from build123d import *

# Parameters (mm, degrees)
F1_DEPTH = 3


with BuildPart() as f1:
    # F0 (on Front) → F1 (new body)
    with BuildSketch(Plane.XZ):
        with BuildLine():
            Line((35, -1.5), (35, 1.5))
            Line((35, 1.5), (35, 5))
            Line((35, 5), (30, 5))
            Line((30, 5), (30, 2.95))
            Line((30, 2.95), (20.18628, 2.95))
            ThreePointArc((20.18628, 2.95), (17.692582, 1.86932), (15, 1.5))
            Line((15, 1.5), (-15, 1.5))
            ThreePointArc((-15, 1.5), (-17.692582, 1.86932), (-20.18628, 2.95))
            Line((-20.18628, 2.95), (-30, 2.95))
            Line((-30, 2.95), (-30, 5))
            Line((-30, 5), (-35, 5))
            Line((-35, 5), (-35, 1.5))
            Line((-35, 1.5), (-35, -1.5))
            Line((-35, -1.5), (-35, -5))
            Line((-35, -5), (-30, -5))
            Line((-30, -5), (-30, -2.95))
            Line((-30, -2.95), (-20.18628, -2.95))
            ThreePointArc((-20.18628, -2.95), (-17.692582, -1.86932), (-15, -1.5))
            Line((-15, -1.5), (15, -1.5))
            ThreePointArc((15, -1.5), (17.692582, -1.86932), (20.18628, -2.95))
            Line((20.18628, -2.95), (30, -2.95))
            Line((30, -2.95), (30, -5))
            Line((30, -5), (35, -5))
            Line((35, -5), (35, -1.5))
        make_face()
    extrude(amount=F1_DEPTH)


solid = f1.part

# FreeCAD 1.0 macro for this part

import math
import FreeCAD as App
import Part
import Sketcher
from FreeCAD import Vector
Q = App.Units.Quantity

doc = App.newDocument("Part")
body = doc.addObject("PartDesign::Body", "Body")

sketch1 = body.newObject("Sketcher::SketchObject", "Sketch")
sketch1.AttachmentSupport = (doc.getObject("XZ_Plane"), [""])
sketch1.MapMode = "FlatFace"
sketch1.addGeometry(Part.LineSegment(Vector(35, 5, 0), Vector(30, 5, 0)), False)
sketch1.addGeometry(Part.LineSegment(Vector(30, 5, 0), Vector(30, 3, 0)), False)
sketch1.addGeometry(Part.LineSegment(Vector(30, 3, 0), Vector(20.2, 3, 0)), False)
sketch1.addGeometry(Part.ArcOfCircle(Part.Circle(Vector(15, 11.5, 0), Vector(0, 0, 1), 10), math.radians(-90), math.radians(-59)), False)
sketch1.addGeometry(Part.LineSegment(Vector(15, 1.5, 0), Vector(-15, 1.5, 0)), False)
sketch1.addGeometry(Part.ArcOfCircle(Part.Circle(Vector(-15, 11.5, 0), Vector(0, 0, 1), 10), math.radians(-121), math.radians(-90)), False)
sketch1.addGeometry(Part.LineSegment(Vector(-20.2, 3, 0), Vector(-30, 3, 0)), False)
sketch1.addGeometry(Part.LineSegment(Vector(-30, 3, 0), Vector(-30, 5, 0)), False)
sketch1.addGeometry(Part.LineSegment(Vector(-30, 5, 0), Vector(-35, 5, 0)), False)
sketch1.addGeometry(Part.LineSegment(Vector(-35, 5, 0), Vector(-35, -5, 0)), False)
sketch1.addGeometry(Part.LineSegment(Vector(-35, -5, 0), Vector(-30, -5, 0)), False)
sketch1.addGeometry(Part.LineSegment(Vector(-30, -5, 0), Vector(-30, -3, 0)), False)
sketch1.addGeometry(Part.LineSegment(Vector(-30, -3, 0), Vector(-20.2, -3, 0)), False)
sketch1.addGeometry(Part.ArcOfCircle(Part.Circle(Vector(-15, -11.5, 0), Vector(0, 0, 1), 10), math.radians(90), math.radians(121)), False)
sketch1.addGeometry(Part.LineSegment(Vector(-15, -1.5, 0), Vector(15, -1.5, 0)), False)
sketch1.addGeometry(Part.ArcOfCircle(Part.Circle(Vector(15, -11.5, 0), Vector(0, 0, 1), 10), math.radians(59), math.radians(90)), False)
sketch1.addGeometry(Part.LineSegment(Vector(20.2, -3, 0), Vector(30, -3, 0)), False)
sketch1.addGeometry(Part.LineSegment(Vector(30, -3, 0), Vector(30, -5, 0)), False)
sketch1.addGeometry(Part.LineSegment(Vector(30, -5, 0), Vector(35, -5, 0)), False)
sketch1.addGeometry(Part.LineSegment(Vector(35, -5, 0), Vector(35, 5, 0)), False)
sketch1.addConstraint(Sketcher.Constraint("Coincident", 0, 2, 1, 1))
sketch1.addConstraint(Sketcher.Constraint("Coincident", 1, 2, 2, 1))
sketch1.addConstraint(Sketcher.Constraint("Coincident", 2, 2, 3, 2))
sketch1.addConstraint(Sketcher.Constraint("Tangent", 3, 1, 4, 1))
sketch1.addConstraint(Sketcher.Constraint("Tangent", 4, 2, 5, 2))
sketch1.addConstraint(Sketcher.Constraint("Coincident", 5, 1, 6, 1))
sketch1.addConstraint(Sketcher.Constraint("Coincident", 6, 2, 7, 1))
sketch1.addConstraint(Sketcher.Constraint("Coincident", 7, 2, 8, 1))
sketch1.addConstraint(Sketcher.Constraint("Coincident", 8, 2, 9, 1))
sketch1.addConstraint(Sketcher.Constraint("Coincident", 9, 2, 10, 1))
sketch1.addConstraint(Sketcher.Constraint("Coincident", 10, 2, 11, 1))
sketch1.addConstraint(Sketcher.Constraint("Coincident", 11, 2, 12, 1))
sketch1.addConstraint(Sketcher.Constraint("Coincident", 12, 2, 13, 2))
sketch1.addConstraint(Sketcher.Constraint("Tangent", 13, 1, 14, 1))
sketch1.addConstraint(Sketcher.Constraint("Tangent", 14, 2, 15, 2))
sketch1.addConstraint(Sketcher.Constraint("Coincident", 15, 1, 16, 1))
sketch1.addConstraint(Sketcher.Constraint("Coincident", 16, 2, 17, 1))
sketch1.addConstraint(Sketcher.Constraint("Coincident", 17, 2, 18, 1))
sketch1.addConstraint(Sketcher.Constraint("Coincident", 18, 2, 19, 1))
sketch1.addConstraint(Sketcher.Constraint("Coincident", 19, 2, 0, 1))
sketch1.addConstraint(Sketcher.Constraint("Horizontal", 0))
sketch1.addConstraint(Sketcher.Constraint("Vertical", 1))
sketch1.addConstraint(Sketcher.Constraint("Horizontal", 2))
sketch1.addConstraint(Sketcher.Constraint("Horizontal", 4))
sketch1.addConstraint(Sketcher.Constraint("Horizontal", 6))
sketch1.addConstraint(Sketcher.Constraint("Vertical", 7))
sketch1.addConstraint(Sketcher.Constraint("Horizontal", 8))
sketch1.addConstraint(Sketcher.Constraint("Vertical", 9))
sketch1.addConstraint(Sketcher.Constraint("Horizontal", 10))
sketch1.addConstraint(Sketcher.Constraint("Vertical", 11))
sketch1.addConstraint(Sketcher.Constraint("Horizontal", 12))
sketch1.addConstraint(Sketcher.Constraint("Horizontal", 14))
sketch1.addConstraint(Sketcher.Constraint("Horizontal", 16))
sketch1.addConstraint(Sketcher.Constraint("Vertical", 17))
sketch1.addConstraint(Sketcher.Constraint("Horizontal", 18))
sketch1.addConstraint(Sketcher.Constraint("Vertical", 19))
sketch1.addConstraint(Sketcher.Constraint("Equal", 3, 5))
sketch1.addConstraint(Sketcher.Constraint("Equal", 5, 13))
sketch1.addConstraint(Sketcher.Constraint("Equal", 13, 15))
sketch1.addConstraint(Sketcher.Constraint("Symmetric", 3, 3, 13, 3, -1, 1))
sketch1.addConstraint(Sketcher.Constraint("Symmetric", 0, 2, 10, 2, -1, 1))
sketch1.addConstraint(Sketcher.Constraint("Symmetric", 5, 1, 15, 1, -1, 1))
sketch1.addConstraint(Sketcher.Constraint("Symmetric", 7, 2, 17, 2, -1, 1))
sketch1.addConstraint(Sketcher.Constraint("Symmetric", 2, 2, 5, 1, -2))
sketch1.addConstraint(Sketcher.Constraint("Symmetric", 0, 2, 7, 2, -2))
sketch1.addConstraint(Sketcher.Constraint("Horizontal", 12, 2, 15, 1))
sketch1.addConstraint(Sketcher.Constraint("Equal", 0, 8))
sketch1.addConstraint(Sketcher.Constraint("DistanceX", 0, 2, 0, 1, Q("5 mm")))
sketch1.addConstraint(Sketcher.Constraint("DistanceX", 4, 2, 4, 1, Q("30 mm")))
sketch1.addConstraint(Sketcher.Constraint("DistanceY", 9, 2, 9, 1, Q("10 mm")))
sketch1.addConstraint(Sketcher.Constraint("DistanceX", -1, 1, 0, 2, Q("30 mm")))
sketch1.addConstraint(Sketcher.Constraint("DistanceY", 13, 1, 4, 2, Q("3 mm")))
sketch1.addConstraint(Sketcher.Constraint("DistanceY", 1, 2, 1, 1, Q("2.05 mm")))
sketch1.addConstraint(Sketcher.Constraint("Radius", 3, Q("10.000007 mm")))
pad1 = body.newObject("PartDesign::Pad", "Pad")
pad1.Profile = sketch1
pad1.Length = 3

doc.recompute()
